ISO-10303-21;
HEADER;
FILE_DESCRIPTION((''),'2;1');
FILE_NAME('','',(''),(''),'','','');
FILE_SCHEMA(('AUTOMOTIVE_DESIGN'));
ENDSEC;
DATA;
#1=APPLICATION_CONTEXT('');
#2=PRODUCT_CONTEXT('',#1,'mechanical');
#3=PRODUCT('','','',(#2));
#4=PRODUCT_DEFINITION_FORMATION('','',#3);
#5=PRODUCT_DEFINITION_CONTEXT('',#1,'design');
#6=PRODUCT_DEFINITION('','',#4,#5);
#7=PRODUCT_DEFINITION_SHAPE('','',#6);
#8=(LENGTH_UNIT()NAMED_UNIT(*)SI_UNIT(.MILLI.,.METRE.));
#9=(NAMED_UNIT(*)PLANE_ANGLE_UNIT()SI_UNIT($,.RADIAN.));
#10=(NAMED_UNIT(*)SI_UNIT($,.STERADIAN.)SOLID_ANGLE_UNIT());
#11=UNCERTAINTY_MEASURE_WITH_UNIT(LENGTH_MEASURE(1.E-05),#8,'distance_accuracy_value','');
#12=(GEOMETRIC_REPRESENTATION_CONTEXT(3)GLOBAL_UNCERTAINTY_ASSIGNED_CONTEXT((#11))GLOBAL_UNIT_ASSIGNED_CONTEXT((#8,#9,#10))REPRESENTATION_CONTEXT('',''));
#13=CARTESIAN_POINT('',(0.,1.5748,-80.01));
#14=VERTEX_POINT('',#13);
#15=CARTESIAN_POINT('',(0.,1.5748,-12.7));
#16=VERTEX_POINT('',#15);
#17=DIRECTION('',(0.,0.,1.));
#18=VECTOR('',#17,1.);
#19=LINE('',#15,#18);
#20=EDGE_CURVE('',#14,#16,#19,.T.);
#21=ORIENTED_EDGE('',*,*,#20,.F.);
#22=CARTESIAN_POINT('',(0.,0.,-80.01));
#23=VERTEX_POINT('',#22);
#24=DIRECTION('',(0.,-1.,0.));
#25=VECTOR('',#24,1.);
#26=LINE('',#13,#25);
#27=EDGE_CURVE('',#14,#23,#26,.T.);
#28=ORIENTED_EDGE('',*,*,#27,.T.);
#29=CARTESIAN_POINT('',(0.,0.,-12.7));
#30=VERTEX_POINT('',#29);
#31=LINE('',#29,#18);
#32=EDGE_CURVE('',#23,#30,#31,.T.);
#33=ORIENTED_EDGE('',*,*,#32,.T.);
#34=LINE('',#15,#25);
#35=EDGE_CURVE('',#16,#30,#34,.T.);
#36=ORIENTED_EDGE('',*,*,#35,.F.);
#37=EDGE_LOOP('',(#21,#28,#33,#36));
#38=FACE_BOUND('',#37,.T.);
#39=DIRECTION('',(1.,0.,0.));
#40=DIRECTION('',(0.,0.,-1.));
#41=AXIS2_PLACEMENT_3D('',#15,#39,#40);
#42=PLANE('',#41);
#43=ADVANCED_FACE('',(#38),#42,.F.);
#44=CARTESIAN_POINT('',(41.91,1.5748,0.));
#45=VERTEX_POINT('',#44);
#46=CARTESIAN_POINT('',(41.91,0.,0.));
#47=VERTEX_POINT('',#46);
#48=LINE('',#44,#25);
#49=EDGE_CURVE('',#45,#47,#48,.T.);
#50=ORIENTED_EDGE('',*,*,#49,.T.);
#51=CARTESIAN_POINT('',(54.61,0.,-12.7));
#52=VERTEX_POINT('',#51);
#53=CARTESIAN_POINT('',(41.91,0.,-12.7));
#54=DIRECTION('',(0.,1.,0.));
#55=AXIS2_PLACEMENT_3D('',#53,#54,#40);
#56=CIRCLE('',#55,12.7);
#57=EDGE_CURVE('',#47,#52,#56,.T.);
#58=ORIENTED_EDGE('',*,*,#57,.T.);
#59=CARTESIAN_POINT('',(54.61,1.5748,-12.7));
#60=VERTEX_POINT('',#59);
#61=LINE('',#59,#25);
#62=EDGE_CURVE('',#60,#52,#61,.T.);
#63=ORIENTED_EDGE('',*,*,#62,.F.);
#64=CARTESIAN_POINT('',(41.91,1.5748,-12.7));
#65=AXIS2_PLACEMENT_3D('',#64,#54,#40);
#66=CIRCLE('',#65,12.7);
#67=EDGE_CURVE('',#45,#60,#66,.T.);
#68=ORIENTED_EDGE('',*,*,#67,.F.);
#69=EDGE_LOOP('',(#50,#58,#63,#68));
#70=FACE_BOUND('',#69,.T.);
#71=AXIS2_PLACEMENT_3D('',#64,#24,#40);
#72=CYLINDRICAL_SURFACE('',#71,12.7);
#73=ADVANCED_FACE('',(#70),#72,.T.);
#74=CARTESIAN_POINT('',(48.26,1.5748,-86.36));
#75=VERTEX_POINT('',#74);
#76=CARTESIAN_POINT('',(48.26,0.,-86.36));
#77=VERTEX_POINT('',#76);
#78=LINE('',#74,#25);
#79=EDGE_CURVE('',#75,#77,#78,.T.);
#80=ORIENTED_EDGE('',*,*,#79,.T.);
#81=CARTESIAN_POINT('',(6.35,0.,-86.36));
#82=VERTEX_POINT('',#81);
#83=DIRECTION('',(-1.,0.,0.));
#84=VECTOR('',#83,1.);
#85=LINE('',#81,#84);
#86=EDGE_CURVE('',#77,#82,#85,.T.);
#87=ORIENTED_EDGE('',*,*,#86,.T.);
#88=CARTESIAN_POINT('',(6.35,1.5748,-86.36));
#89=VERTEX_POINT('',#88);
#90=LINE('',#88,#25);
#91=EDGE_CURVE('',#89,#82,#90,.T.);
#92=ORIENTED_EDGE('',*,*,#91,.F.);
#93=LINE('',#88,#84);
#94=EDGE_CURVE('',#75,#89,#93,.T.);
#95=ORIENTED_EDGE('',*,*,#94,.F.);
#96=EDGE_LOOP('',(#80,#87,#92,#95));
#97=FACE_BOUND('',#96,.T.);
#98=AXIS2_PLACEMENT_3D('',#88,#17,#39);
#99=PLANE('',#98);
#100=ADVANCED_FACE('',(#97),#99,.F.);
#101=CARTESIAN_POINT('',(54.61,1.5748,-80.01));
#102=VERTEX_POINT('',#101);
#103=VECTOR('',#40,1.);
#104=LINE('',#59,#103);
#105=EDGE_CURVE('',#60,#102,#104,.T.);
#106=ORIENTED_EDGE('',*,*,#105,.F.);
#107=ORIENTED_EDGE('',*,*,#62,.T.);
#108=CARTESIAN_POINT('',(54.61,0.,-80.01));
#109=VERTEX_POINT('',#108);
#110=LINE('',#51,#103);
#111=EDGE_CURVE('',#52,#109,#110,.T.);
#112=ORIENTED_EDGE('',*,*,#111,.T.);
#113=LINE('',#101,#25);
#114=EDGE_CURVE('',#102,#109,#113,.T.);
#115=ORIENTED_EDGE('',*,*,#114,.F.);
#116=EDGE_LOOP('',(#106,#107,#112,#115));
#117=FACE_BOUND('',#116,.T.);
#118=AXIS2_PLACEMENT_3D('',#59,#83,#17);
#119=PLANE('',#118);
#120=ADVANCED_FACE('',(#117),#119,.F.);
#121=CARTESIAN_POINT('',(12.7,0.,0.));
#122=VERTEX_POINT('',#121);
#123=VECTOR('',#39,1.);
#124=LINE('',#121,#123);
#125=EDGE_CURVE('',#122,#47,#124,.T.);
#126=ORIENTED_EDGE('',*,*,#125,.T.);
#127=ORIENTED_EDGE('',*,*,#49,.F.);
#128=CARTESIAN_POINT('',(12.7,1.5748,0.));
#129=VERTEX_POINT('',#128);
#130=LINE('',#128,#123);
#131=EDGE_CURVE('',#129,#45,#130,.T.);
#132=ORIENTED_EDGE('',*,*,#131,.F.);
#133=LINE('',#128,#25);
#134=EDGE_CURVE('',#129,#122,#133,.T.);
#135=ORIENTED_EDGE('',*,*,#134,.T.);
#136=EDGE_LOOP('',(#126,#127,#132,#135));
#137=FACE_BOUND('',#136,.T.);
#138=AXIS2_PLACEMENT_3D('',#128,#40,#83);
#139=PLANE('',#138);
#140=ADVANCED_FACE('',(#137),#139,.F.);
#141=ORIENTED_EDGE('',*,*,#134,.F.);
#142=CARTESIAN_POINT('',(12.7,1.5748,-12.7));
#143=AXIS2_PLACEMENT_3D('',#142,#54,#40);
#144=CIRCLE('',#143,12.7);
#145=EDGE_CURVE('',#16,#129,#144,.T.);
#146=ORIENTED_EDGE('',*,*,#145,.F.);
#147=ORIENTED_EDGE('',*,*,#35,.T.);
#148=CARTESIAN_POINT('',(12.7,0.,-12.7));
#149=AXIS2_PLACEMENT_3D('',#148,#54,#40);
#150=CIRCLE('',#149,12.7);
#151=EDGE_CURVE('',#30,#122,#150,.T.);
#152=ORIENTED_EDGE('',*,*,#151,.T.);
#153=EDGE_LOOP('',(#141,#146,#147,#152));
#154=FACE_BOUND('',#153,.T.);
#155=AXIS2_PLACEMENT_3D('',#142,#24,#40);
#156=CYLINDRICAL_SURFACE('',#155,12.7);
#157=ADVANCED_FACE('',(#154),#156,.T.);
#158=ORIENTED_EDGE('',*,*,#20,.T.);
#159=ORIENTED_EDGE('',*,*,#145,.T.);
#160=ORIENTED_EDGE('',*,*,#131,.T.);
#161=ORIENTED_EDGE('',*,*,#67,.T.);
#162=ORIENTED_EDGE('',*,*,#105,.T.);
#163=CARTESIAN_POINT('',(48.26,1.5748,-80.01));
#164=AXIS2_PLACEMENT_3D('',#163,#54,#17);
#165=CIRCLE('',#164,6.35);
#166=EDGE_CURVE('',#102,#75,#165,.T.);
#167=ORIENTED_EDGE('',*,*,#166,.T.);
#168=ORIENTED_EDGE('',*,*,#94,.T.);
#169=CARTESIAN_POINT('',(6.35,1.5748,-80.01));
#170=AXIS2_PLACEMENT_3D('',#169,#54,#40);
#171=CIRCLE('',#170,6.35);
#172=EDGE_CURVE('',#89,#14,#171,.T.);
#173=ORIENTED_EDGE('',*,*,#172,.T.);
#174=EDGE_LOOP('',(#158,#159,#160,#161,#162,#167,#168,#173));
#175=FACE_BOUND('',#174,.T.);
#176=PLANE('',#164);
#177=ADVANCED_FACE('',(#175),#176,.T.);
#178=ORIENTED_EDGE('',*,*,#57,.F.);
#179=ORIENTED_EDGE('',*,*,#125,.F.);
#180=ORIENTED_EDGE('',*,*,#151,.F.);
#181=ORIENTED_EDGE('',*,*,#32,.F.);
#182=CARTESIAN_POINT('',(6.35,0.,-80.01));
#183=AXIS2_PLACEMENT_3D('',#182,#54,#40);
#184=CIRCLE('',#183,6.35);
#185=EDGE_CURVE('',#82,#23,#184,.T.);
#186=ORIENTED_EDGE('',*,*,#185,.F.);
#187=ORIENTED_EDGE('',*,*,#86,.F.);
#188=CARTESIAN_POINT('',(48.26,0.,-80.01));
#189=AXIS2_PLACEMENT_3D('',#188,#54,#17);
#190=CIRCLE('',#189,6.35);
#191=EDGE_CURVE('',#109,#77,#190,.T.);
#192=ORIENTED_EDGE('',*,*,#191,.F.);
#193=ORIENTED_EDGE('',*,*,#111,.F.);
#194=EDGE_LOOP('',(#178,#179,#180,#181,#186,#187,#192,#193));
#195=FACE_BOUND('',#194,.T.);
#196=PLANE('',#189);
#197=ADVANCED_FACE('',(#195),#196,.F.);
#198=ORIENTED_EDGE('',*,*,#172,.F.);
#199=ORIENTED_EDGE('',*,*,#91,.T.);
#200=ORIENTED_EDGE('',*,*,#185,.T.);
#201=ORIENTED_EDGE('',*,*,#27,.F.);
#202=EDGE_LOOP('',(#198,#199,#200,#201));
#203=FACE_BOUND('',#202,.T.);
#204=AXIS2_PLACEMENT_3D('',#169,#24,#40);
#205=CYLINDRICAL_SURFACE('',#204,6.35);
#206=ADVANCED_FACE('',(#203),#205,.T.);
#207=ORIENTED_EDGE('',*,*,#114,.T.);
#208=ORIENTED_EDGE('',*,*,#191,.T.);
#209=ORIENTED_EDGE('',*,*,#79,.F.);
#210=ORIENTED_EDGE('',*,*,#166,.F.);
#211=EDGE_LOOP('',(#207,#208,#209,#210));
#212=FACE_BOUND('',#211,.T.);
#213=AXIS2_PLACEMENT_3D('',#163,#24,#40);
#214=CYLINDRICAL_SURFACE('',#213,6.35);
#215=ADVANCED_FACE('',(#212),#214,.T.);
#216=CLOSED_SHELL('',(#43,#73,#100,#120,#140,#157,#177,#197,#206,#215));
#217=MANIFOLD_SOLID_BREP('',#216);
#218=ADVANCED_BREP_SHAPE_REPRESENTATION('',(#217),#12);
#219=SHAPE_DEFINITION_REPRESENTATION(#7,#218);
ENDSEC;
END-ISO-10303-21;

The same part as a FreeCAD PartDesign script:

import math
import FreeCAD as App
import Part
import Sketcher
from FreeCAD import Vector
Q = App.Units.Quantity

doc = App.newDocument("Part")
params = doc.addObject("Spreadsheet::Sheet", "Params")
for row, (alias, value) in enumerate([
    ("sketch1_radius", "0.5 in"),
    ("sketch1_radius2", "0.25 in"),
    ("sketch1_width", "1.15 in"),
    ("sketch1_height", "2.65 in"),
    ("pad1_length", "0.062 in"),
], start=1):
    params.set(f"A{row}", alias)
    params.set(f"B{row}", "=" + value)
    params.setAlias(f"B{row}", alias)

body = doc.addObject("PartDesign::Body", "Body")

sketch1 = doc.addObject("Sketcher::SketchObject", "Sketch")
body.addObject(sketch1)
sketch1.AttachmentSupport = (doc.XZ_Plane, [""])
sketch1.MapMode = "FlatFace"
sketch1.addGeometry(Part.LineSegment(Vector(12.7, 0, 0), Vector(41.91, 0, 0)), False)
sketch1.addGeometry(Part.ArcOfCircle(Part.Circle(Vector(41.91, -12.7, 0), Vector(0, 0, 1), 12.7), math.radians(0), math.radians(90)), False)
sketch1.addGeometry(Part.LineSegment(Vector(54.61, -12.7, 0), Vector(54.61, -80.01, 0)), False)
sketch1.addGeometry(Part.ArcOfCircle(Part.Circle(Vector(48.26, -80.01, 0), Vector(0, 0, 1), 6.35), math.radians(-90), math.radians(0)), False)
sketch1.addGeometry(Part.LineSegment(Vector(48.26, -86.36, 0), Vector(6.35, -86.36, 0)), False)
sketch1.addGeometry(Part.ArcOfCircle(Part.Circle(Vector(6.35, -80.01, 0), Vector(0, 0, 1), 6.35), math.radians(180), math.radians(270)), False)
sketch1.addGeometry(Part.LineSegment(Vector(0, -80.01, 0), Vector(0, -12.7, 0)), False)
sketch1.addGeometry(Part.ArcOfCircle(Part.Circle(Vector(12.7, -12.7, 0), Vector(0, 0, 1), 12.7), math.radians(90), math.radians(180)), False)
sketch1.addConstraint(Sketcher.Constraint("Tangent", 0, 2, 1, 2))
sketch1.addConstraint(Sketcher.Constraint("Tangent", 1, 1, 2, 1))
sketch1.addConstraint(Sketcher.Constraint("Tangent", 2, 2, 3, 2))
sketch1.addConstraint(Sketcher.Constraint("Tangent", 3, 1, 4, 1))
sketch1.addConstraint(Sketcher.Constraint("Tangent", 4, 2, 5, 2))
sketch1.addConstraint(Sketcher.Constraint("Tangent", 5, 1, 6, 1))
sketch1.addConstraint(Sketcher.Constraint("Tangent", 6, 2, 7, 2))
sketch1.addConstraint(Sketcher.Constraint("Tangent", 7, 1, 0, 1))
sketch1.addConstraint(Sketcher.Constraint("Horizontal", 0))
sketch1.addConstraint(Sketcher.Constraint("Vertical", 2))
sketch1.addConstraint(Sketcher.Constraint("Horizontal", 4))
sketch1.addConstraint(Sketcher.Constraint("Vertical", 6))
sketch1.addConstraint(Sketcher.Constraint("Equal", 3, 5))
sketch1.addConstraint(Sketcher.Constraint("Equal", 1, 7))
sketch1.addConstraint(Sketcher.Constraint("PointOnObject", 0, 2, -1))
sketch1.addConstraint(Sketcher.Constraint("PointOnObject", 5, 1, -2))
sketch1.addConstraint(Sketcher.Constraint("Radius", 1, Q("0.5 in")))
sketch1.addConstraint(Sketcher.Constraint("Radius", 3, Q("0.25 in")))
sketch1.addConstraint(Sketcher.Constraint("DistanceX", 0, 1, 0, 2, Q("1.15 in")))
sketch1.addConstraint(Sketcher.Constraint("DistanceY", 2, 2, 2, 1, Q("2.65 in")))
sketch1.setExpression("Constraints[16]", "Params.sketch1_radius")
sketch1.setExpression("Constraints[17]", "Params.sketch1_radius2")
sketch1.setExpression("Constraints[18]", "Params.sketch1_width")
sketch1.setExpression("Constraints[19]", "Params.sketch1_height")
pad1 = doc.addObject("PartDesign::Pad", "Pad")
body.addObject(pad1)
pad1.Profile = sketch1
pad1.setExpression("Length", "Params.pad1_length")
pad1.Reversed = True

doc.recompute()
